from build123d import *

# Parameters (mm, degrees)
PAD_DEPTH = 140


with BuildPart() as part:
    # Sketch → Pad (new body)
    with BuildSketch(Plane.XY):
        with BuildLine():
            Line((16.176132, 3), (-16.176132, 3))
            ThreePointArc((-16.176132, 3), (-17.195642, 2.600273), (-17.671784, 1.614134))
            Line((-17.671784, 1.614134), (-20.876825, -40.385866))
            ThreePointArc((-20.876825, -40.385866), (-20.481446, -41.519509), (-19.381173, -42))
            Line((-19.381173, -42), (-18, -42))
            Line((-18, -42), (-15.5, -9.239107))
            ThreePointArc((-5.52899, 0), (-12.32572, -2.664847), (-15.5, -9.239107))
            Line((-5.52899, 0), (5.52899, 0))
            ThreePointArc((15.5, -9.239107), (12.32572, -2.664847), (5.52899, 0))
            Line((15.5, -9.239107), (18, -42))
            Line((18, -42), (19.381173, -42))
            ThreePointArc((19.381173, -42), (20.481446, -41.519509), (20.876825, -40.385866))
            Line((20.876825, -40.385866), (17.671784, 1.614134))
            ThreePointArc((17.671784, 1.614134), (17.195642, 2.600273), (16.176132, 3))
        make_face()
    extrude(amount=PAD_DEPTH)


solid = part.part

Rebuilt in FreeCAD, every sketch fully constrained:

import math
import FreeCAD as App
import Part
import Sketcher

doc = App.newDocument("Part")
body = doc.addObject("PartDesign::Body", "Body")

# Sketch on XY plane
sketch1 = body.newObject("Sketcher::SketchObject", "Sketch")
sketch1.AttachmentSupport = (doc.getObject("XY_Plane"), [""])
sketch1.MapMode = "FlatFace"
sketch1.addGeometry([
    Part.LineSegment(App.Vector(16.176132, 3, 0), App.Vector(-16.176132, 3, 0)),  # 0
    Part.ArcOfCircle(Part.Circle(App.Vector(-16.176133, 1.5, 0), App.Vector(0, 0, 1), 1.5), math.radians(89.999971), math.radians(175.636195)),  # 1
    Part.LineSegment(App.Vector(-17.671784, 1.614134, 0), App.Vector(-20.876825, -40.385866, 0)),  # 2
    Part.ArcOfCircle(Part.Circle(App.Vector(-19.381172, -40.499999, 0), App.Vector(0, 0, 1), 1.500001), math.radians(175.636237), math.radians(269.999966)),  # 3
    Part.LineSegment(App.Vector(-19.381173, -42, 0), App.Vector(-18, -42, 0)),  # 4
    Part.LineSegment(App.Vector(-18, -42, 0), App.Vector(-15.5, -9.239107, 0)),  # 5
    Part.ArcOfCircle(Part.Circle(App.Vector(-5.528991, -9.999999, 0), App.Vector(0, 0, 1), 9.999999), math.radians(89.999994), math.radians(175.636193)),  # 6
    Part.LineSegment(App.Vector(-5.52899, 0, 0), App.Vector(5.52899, 0, 0)),  # 7
    Part.ArcOfCircle(Part.Circle(App.Vector(5.528991, -9.999999, 0), App.Vector(0, 0, 1), 9.999999), math.radians(4.363807), math.radians(90.000006)),  # 8
    Part.LineSegment(App.Vector(15.5, -9.239107, 0), App.Vector(18, -42, 0)),  # 9
    Part.LineSegment(App.Vector(18, -42, 0), App.Vector(19.381173, -42, 0)),  # 10
    Part.ArcOfCircle(Part.Circle(App.Vector(19.381172, -40.499999, 0), App.Vector(0, 0, 1), 1.500001), math.radians(-89.999966), math.radians(4.363763)),  # 11
    Part.LineSegment(App.Vector(20.876825, -40.385866, 0), App.Vector(17.671784, 1.614134, 0)),  # 12
    Part.ArcOfCircle(Part.Circle(App.Vector(16.176133, 1.5, 0), App.Vector(0, 0, 1), 1.5), math.radians(4.363805), math.radians(90.000029)),  # 13
], False)
sketch1.addConstraint([
    Sketcher.Constraint("Tangent", 0, 2, 1, 1),
    Sketcher.Constraint("Tangent", 1, 2, 2, 1),
    Sketcher.Constraint("Tangent", 2, 2, 3, 1),
    Sketcher.Constraint("Tangent", 3, 2, 4, 1),
    Sketcher.Constraint("Coincident", 4, 2, 5, 1),
    Sketcher.Constraint("Tangent", 5, 2, 6, 2),
    Sketcher.Constraint("Tangent", 6, 1, 7, 1),
    Sketcher.Constraint("Tangent", 7, 2, 8, 2),
    Sketcher.Constraint("Tangent", 8, 1, 9, 1),
    Sketcher.Constraint("Coincident", 9, 2, 10, 1),
    Sketcher.Constraint("Tangent", 10, 2, 11, 1),
    Sketcher.Constraint("Tangent", 11, 2, 12, 1),
    Sketcher.Constraint("Tangent", 12, 2, 13, 1),
    Sketcher.Constraint("Tangent", 13, 2, 0, 1),
    Sketcher.Constraint("Horizontal", 0),
    Sketcher.Constraint("Horizontal", 4),
    Sketcher.Constraint("Horizontal", 7),
    Sketcher.Constraint("Horizontal", 10),
    Sketcher.Constraint("Equal", 1, 3),
    Sketcher.Constraint("Equal", 6, 8),
    Sketcher.Constraint("Equal", 3, 11),
    Sketcher.Constraint("Equal", 11, 13),
    Sketcher.Constraint("Symmetric", 6, 1, 7, 2, -1, 1),
    Sketcher.Constraint("Symmetric", 3, 3, 11, 3, -2),
    Sketcher.Constraint("Parallel", 2, 5),
    Sketcher.Constraint("Parallel", 9, 12),
    Sketcher.Constraint("Horizontal", 5, 2, 8, 1),
    Sketcher.Constraint("Radius", 6, 9.999999),
    Sketcher.Constraint("Radius", 1, 1.5),
    Sketcher.Constraint("DistanceY", -1, 1, 0, 2, 3.0),
    Sketcher.Constraint("DistanceY", 3, 2, -1, 1, 42.0),
    Sketcher.Constraint("DistanceX", 4, 2, -1, 1, 18.0),
    Sketcher.Constraint("DistanceX", 5, 2, -1, 1, 15.5),
    Sketcher.Constraint("DistanceX", 0, 2, 0, 1, 32.352264),
])
pad1 = body.newObject("PartDesign::Pad", "Pad")
pad1.Profile = sketch1
pad1.Length = 140

doc.recompute()
